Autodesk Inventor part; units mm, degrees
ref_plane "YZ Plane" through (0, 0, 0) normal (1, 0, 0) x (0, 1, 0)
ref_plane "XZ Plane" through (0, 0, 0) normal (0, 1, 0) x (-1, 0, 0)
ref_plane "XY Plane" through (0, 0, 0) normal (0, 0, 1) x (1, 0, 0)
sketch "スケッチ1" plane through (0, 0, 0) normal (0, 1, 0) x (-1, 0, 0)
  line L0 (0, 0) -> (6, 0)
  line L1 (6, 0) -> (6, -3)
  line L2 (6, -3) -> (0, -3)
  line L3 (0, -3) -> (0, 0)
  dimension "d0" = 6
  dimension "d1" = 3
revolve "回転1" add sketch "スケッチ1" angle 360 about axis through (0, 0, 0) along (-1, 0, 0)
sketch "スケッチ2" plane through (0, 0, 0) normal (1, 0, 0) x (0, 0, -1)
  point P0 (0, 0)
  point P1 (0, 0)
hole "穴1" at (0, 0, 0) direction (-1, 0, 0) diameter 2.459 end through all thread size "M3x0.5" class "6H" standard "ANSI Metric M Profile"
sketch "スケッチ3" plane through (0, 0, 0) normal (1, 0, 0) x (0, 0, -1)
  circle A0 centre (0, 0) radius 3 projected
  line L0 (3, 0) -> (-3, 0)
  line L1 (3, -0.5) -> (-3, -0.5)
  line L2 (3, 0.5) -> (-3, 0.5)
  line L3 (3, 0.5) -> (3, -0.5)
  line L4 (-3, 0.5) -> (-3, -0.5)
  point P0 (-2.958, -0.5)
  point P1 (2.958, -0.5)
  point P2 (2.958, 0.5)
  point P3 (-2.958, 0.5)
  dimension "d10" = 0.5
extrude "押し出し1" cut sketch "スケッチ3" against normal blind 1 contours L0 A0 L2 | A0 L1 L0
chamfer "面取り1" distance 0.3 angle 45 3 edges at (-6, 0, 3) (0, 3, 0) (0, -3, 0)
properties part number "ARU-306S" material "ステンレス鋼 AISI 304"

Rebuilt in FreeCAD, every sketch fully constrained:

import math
import FreeCAD as App
import Part
import Sketcher

V = App.Vector
Q = App.Units.Quantity


def edges_at(feature, points):
    """Names of the edges that pass closest to the given points."""
    edges = feature.Shape.Edges
    near = lambda p: min(range(len(edges)), key=lambda i: edges[i].distToShape(Part.Vertex(*p))[0])
    return sorted({f"Edge{near(p) + 1}" for p in points})


def add_polygon(sketch, points):
    """Adds a closed chain of lines whose ends are joined by coincident constraints."""
    first, n = sketch.GeometryCount, len(points)
    for a, b in zip(points, points[1:] + points[:1]):
        sketch.addGeometry(Part.LineSegment(App.Vector(*a, 0), App.Vector(*b, 0)), False)
    for i in range(n):
        sketch.addConstraint(Sketcher.Constraint("Coincident", first + i, 2, first + (i + 1) % n, 1))

doc = App.newDocument("Part")
body = doc.addObject("PartDesign::Body", "Body")

sketch1 = body.newObject("Sketcher::SketchObject", "Sketch")
sketch1.AttachmentSupport = (doc.getObject("XZ_Plane"), [""])
sketch1.MapMode = "FlatFace"
add_polygon(sketch1, [(-6, 0), (0, 0), (0, -3), (-6, -3)])
sketch1.addConstraint([
    Sketcher.Constraint("Horizontal", 0),
    Sketcher.Constraint("Vertical", 1),
    Sketcher.Constraint("Horizontal", 2),
    Sketcher.Constraint("Vertical", 3),
    Sketcher.Constraint("Coincident", 0, 2, -1, 1),
    Sketcher.Constraint("DistanceX", 0, 1, 0, 2, Q("6 mm")),
    Sketcher.Constraint("DistanceY", 1, 2, 1, 1, Q("3 mm")),
])
revolution = body.newObject("PartDesign::Revolution", "Revolution")
revolution.Profile = sketch1
revolution.ReferenceAxis = (sketch1, ["H_Axis"])
revolution.Angle = 360

sketch2 = body.newObject("Sketcher::SketchObject", "Sketch001")
sketch2.AttachmentSupport = (doc.getObject("YZ_Plane"), [""])
sketch2.MapMode = "FlatFace"
sketch2.addGeometry(Part.Circle(V(0, 0, 0), V(0, 0, 1), 1.2), False)
sketch2.addConstraint([
    Sketcher.Constraint("Coincident", 0, 3, -1, 1),
    Sketcher.Constraint("Diameter", 0, Q("2.459 mm")),
])
doc.recompute()
hole = body.newObject("PartDesign::Hole", "Hole")
hole.Profile = sketch2
hole.ThreadType = "None"
hole.Diameter = 2.459
hole.DepthType = "ThroughAll"

sketch3 = body.newObject("Sketcher::SketchObject", "Sketch002")
sketch3.AttachmentSupport = (doc.getObject("YZ_Plane"), [""])
sketch3.MapMode = "FlatFace"
sketch3.addGeometry([
    Part.ArcOfCircle(Part.Circle(V(0, 0, 0), V(0, 0, 1), 3), math.radians(80.41), math.radians(99.59)),
    Part.LineSegment(V(-0.5, 3, 0), V(-0.5, -3, 0)),
    Part.ArcOfCircle(Part.Circle(V(0, 0, 0), V(0, 0, 1), 3), math.radians(-99.59), math.radians(-80.41)),
    Part.LineSegment(V(0.5, -3, 0), V(0.5, 3, 0)),
], False)
sketch3.addConstraint([
    Sketcher.Constraint("Coincident", 0, 2, 1, 1),
    Sketcher.Constraint("Coincident", 1, 2, 2, 1),
    Sketcher.Constraint("Coincident", 2, 2, 3, 1),
    Sketcher.Constraint("Coincident", 3, 2, 0, 1),
    Sketcher.Constraint("Vertical", 1),
    Sketcher.Constraint("Vertical", 3),
    Sketcher.Constraint("Coincident", 0, 3, -1, 1),
    Sketcher.Constraint("Coincident", 2, 3, -1, 1),
    Sketcher.Constraint("Equal", 0, 2),
    Sketcher.Constraint("Horizontal", 1, 2, 2, 2),
    Sketcher.Constraint("Radius", 0, Q("3 mm")),
    Sketcher.Constraint("DistanceX", 0, 2, -1, 1, Q("0.5 mm")),
])
pocket1 = body.newObject("PartDesign::Pocket", "Pocket")
pocket1.Profile = sketch3
pocket1.Length = 1
doc.recompute()

chamfer = body.newObject("PartDesign::Chamfer", "Chamfer")
chamfer.Base = (pocket1, edges_at(pocket1, [(-6, 0, 3), (0, 3, 0), (0, -3, 0)]))
chamfer.Size = 0.3

doc.recompute()
